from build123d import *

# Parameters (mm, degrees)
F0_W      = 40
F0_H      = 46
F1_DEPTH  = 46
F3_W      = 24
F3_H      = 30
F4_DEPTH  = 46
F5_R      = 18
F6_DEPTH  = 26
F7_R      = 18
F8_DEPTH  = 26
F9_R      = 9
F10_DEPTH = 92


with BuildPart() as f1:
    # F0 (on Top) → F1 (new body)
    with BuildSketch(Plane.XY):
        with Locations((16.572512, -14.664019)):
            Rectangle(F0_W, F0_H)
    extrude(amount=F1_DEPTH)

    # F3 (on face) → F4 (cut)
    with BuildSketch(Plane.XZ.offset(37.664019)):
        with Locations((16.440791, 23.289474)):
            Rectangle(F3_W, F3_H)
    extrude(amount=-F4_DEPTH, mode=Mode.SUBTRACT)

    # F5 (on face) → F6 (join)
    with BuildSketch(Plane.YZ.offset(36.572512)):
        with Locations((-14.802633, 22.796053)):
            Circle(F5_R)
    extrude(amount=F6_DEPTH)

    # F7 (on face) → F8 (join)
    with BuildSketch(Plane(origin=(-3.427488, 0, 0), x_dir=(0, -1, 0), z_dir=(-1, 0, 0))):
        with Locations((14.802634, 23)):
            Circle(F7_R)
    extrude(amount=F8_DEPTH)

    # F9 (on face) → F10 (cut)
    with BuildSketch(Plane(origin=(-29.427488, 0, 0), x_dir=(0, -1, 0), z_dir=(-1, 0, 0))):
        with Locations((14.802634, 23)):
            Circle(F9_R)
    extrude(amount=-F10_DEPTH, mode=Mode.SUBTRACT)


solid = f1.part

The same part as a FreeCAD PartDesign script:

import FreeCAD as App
import Part
import Sketcher
from FreeCAD import Vector
Q = App.Units.Quantity


def add_polygon(sketch, points):
    """Adds a closed chain of lines whose ends are joined by coincident constraints."""
    first, n = sketch.GeometryCount, len(points)
    for a, b in zip(points, points[1:] + points[:1]):
        sketch.addGeometry(Part.LineSegment(App.Vector(*a, 0), App.Vector(*b, 0)), False)
    for i in range(n):
        sketch.addConstraint(Sketcher.Constraint("Coincident", first + i, 2, first + (i + 1) % n, 1))

doc = App.newDocument("Part")
params = doc.addObject("Spreadsheet::Sheet", "Params")
for row, (alias, value) in enumerate([
    ("sketch1_width", "40 mm"),
    ("sketch1_height", "46 mm"),
    ("pad1_length", "46 mm"),
    ("sketch2_width", "24 mm"),
    ("sketch2_height", "30 mm"),
    ("pocket1_length", "46 mm"),
    ("sketch3_diameter", "36 mm"),
    ("pad2_length", "26 mm"),
    ("sketch4_diameter", "36 mm"),
    ("pad3_length", "26 mm"),
    ("sketch5_diameter", "18 mm"),
    ("pocket2_length", "92 mm"),
], start=1):
    params.set(f"A{row}", alias)
    params.set(f"B{row}", "=" + value)
    params.setAlias(f"B{row}", alias)

body = doc.addObject("PartDesign::Body", "Body")

sketch1 = body.newObject("Sketcher::SketchObject", "Sketch")
sketch1.AttachmentSupport = (doc.getObject("XY_Plane"), [""])
sketch1.MapMode = "FlatFace"
add_polygon(sketch1, [(-3.427488, 8.335981), (-3.427488, -37.664019), (36.572512, -37.664019), (36.572512, 8.335981)])
sketch1.addConstraint(Sketcher.Constraint("Vertical", 0))
sketch1.addConstraint(Sketcher.Constraint("Horizontal", 1))
sketch1.addConstraint(Sketcher.Constraint("Vertical", 2))
sketch1.addConstraint(Sketcher.Constraint("Horizontal", 3))
sketch1.addConstraint(Sketcher.Constraint("DistanceX", 1, 1, 1, 2, Q("40 mm")))
sketch1.addConstraint(Sketcher.Constraint("DistanceY", 0, 2, 0, 1, Q("46 mm")))
sketch1.addConstraint(Sketcher.Constraint("DistanceY", 0, 2, -1, 1, Q("37.664019 mm")))
sketch1.addConstraint(Sketcher.Constraint("DistanceX", 0, 2, -1, 1, Q("3.427488 mm")))
sketch1.setExpression("Constraints[8]", "Params.sketch1_width")
sketch1.setExpression("Constraints[9]", "Params.sketch1_height")
pad1 = body.newObject("PartDesign::Pad", "Pad")
pad1.Profile = sketch1
pad1.setExpression("Length", "Params.pad1_length")

sketch2 = body.newObject("Sketcher::SketchObject", "Sketch001")
sketch2.AttachmentSupport = (doc.getObject("XZ_Plane"), [""])
sketch2.MapMode = "FlatFace"
sketch2.AttachmentOffset = App.Placement(Vector(0, 0, 37.664019), App.Rotation())
add_polygon(sketch2, [(4.440791, 38.289474), (4.440791, 8.289474), (28.440791, 8.289474), (28.440791, 38.289474)])
sketch2.addConstraint(Sketcher.Constraint("Vertical", 0))
sketch2.addConstraint(Sketcher.Constraint("Horizontal", 1))
sketch2.addConstraint(Sketcher.Constraint("Vertical", 2))
sketch2.addConstraint(Sketcher.Constraint("Horizontal", 3))
sketch2.addConstraint(Sketcher.Constraint("DistanceX", 1, 1, 1, 2, Q("24 mm")))
sketch2.addConstraint(Sketcher.Constraint("DistanceY", 0, 2, 0, 1, Q("30 mm")))
sketch2.addConstraint(Sketcher.Constraint("DistanceX", -1, 1, 0, 2, Q("4.440791 mm")))
sketch2.addConstraint(Sketcher.Constraint("DistanceY", -1, 1, 0, 2, Q("8.289474 mm")))
sketch2.setExpression("Constraints[8]", "Params.sketch2_width")
sketch2.setExpression("Constraints[9]", "Params.sketch2_height")
pocket1 = body.newObject("PartDesign::Pocket", "Pocket")
pocket1.Profile = sketch2
pocket1.setExpression("Length", "Params.pocket1_length")

sketch3 = body.newObject("Sketcher::SketchObject", "Sketch002")
sketch3.AttachmentSupport = (doc.getObject("YZ_Plane"), [""])
sketch3.MapMode = "FlatFace"
sketch3.AttachmentOffset = App.Placement(Vector(0, 0, 36.572512), App.Rotation())
sketch3.addGeometry(Part.Circle(Vector(-14.802633, 22.796053, 0), Vector(0, 0, 1), 18), False)
sketch3.addConstraint(Sketcher.Constraint("Diameter", 0, Q("36 mm")))
sketch3.addConstraint(Sketcher.Constraint("DistanceX", 0, 3, -1, 1, Q("14.802633 mm")))
sketch3.addConstraint(Sketcher.Constraint("DistanceY", -1, 1, 0, 3, Q("22.796053 mm")))
sketch3.setExpression("Constraints[0]", "Params.sketch3_diameter")
pad2 = body.newObject("PartDesign::Pad", "Pad001")
pad2.Profile = sketch3
pad2.setExpression("Length", "Params.pad2_length")

sketch4 = body.newObject("Sketcher::SketchObject", "Sketch003")
sketch4.AttachmentSupport = (doc.getObject("YZ_Plane"), [""])
sketch4.MapMode = "FlatFace"
sketch4.AttachmentOffset = App.Placement(Vector(0, 0, -3.427488), App.Rotation())
sketch4.addGeometry(Part.Circle(Vector(-14.802634, 23, 0), Vector(0, 0, 1), 18), False)
sketch4.addConstraint(Sketcher.Constraint("Diameter", 0, Q("36 mm")))
sketch4.addConstraint(Sketcher.Constraint("DistanceY", -1, 1, 0, 3, Q("23 mm")))
sketch4.addConstraint(Sketcher.Constraint("DistanceX", 0, 3, -1, 1, Q("14.802634 mm")))
sketch4.setExpression("Constraints[0]", "Params.sketch4_diameter")
pad3 = body.newObject("PartDesign::Pad", "Pad002")
pad3.Profile = sketch4
pad3.setExpression("Length", "Params.pad3_length")
pad3.Reversed = True

sketch5 = body.newObject("Sketcher::SketchObject", "Sketch004")
sketch5.AttachmentSupport = (doc.getObject("YZ_Plane"), [""])
sketch5.MapMode = "FlatFace"
sketch5.AttachmentOffset = App.Placement(Vector(0, 0, -29.427488), App.Rotation())
sketch5.addGeometry(Part.Circle(Vector(-14.802634, 23, 0), Vector(0, 0, 1), 9), False)
sketch5.addConstraint(Sketcher.Constraint("Diameter", 0, Q("18 mm")))
sketch5.addConstraint(Sketcher.Constraint("DistanceY", -1, 1, 0, 3, Q("23 mm")))
sketch5.addConstraint(Sketcher.Constraint("DistanceX", 0, 3, -1, 1, Q("14.802634 mm")))
sketch5.setExpression("Constraints[0]", "Params.sketch5_diameter")
pocket2 = body.newObject("PartDesign::Pocket", "Pocket001")
pocket2.Profile = sketch5
pocket2.setExpression("Length", "Params.pocket2_length")
pocket2.Reversed = True

doc.recompute()
